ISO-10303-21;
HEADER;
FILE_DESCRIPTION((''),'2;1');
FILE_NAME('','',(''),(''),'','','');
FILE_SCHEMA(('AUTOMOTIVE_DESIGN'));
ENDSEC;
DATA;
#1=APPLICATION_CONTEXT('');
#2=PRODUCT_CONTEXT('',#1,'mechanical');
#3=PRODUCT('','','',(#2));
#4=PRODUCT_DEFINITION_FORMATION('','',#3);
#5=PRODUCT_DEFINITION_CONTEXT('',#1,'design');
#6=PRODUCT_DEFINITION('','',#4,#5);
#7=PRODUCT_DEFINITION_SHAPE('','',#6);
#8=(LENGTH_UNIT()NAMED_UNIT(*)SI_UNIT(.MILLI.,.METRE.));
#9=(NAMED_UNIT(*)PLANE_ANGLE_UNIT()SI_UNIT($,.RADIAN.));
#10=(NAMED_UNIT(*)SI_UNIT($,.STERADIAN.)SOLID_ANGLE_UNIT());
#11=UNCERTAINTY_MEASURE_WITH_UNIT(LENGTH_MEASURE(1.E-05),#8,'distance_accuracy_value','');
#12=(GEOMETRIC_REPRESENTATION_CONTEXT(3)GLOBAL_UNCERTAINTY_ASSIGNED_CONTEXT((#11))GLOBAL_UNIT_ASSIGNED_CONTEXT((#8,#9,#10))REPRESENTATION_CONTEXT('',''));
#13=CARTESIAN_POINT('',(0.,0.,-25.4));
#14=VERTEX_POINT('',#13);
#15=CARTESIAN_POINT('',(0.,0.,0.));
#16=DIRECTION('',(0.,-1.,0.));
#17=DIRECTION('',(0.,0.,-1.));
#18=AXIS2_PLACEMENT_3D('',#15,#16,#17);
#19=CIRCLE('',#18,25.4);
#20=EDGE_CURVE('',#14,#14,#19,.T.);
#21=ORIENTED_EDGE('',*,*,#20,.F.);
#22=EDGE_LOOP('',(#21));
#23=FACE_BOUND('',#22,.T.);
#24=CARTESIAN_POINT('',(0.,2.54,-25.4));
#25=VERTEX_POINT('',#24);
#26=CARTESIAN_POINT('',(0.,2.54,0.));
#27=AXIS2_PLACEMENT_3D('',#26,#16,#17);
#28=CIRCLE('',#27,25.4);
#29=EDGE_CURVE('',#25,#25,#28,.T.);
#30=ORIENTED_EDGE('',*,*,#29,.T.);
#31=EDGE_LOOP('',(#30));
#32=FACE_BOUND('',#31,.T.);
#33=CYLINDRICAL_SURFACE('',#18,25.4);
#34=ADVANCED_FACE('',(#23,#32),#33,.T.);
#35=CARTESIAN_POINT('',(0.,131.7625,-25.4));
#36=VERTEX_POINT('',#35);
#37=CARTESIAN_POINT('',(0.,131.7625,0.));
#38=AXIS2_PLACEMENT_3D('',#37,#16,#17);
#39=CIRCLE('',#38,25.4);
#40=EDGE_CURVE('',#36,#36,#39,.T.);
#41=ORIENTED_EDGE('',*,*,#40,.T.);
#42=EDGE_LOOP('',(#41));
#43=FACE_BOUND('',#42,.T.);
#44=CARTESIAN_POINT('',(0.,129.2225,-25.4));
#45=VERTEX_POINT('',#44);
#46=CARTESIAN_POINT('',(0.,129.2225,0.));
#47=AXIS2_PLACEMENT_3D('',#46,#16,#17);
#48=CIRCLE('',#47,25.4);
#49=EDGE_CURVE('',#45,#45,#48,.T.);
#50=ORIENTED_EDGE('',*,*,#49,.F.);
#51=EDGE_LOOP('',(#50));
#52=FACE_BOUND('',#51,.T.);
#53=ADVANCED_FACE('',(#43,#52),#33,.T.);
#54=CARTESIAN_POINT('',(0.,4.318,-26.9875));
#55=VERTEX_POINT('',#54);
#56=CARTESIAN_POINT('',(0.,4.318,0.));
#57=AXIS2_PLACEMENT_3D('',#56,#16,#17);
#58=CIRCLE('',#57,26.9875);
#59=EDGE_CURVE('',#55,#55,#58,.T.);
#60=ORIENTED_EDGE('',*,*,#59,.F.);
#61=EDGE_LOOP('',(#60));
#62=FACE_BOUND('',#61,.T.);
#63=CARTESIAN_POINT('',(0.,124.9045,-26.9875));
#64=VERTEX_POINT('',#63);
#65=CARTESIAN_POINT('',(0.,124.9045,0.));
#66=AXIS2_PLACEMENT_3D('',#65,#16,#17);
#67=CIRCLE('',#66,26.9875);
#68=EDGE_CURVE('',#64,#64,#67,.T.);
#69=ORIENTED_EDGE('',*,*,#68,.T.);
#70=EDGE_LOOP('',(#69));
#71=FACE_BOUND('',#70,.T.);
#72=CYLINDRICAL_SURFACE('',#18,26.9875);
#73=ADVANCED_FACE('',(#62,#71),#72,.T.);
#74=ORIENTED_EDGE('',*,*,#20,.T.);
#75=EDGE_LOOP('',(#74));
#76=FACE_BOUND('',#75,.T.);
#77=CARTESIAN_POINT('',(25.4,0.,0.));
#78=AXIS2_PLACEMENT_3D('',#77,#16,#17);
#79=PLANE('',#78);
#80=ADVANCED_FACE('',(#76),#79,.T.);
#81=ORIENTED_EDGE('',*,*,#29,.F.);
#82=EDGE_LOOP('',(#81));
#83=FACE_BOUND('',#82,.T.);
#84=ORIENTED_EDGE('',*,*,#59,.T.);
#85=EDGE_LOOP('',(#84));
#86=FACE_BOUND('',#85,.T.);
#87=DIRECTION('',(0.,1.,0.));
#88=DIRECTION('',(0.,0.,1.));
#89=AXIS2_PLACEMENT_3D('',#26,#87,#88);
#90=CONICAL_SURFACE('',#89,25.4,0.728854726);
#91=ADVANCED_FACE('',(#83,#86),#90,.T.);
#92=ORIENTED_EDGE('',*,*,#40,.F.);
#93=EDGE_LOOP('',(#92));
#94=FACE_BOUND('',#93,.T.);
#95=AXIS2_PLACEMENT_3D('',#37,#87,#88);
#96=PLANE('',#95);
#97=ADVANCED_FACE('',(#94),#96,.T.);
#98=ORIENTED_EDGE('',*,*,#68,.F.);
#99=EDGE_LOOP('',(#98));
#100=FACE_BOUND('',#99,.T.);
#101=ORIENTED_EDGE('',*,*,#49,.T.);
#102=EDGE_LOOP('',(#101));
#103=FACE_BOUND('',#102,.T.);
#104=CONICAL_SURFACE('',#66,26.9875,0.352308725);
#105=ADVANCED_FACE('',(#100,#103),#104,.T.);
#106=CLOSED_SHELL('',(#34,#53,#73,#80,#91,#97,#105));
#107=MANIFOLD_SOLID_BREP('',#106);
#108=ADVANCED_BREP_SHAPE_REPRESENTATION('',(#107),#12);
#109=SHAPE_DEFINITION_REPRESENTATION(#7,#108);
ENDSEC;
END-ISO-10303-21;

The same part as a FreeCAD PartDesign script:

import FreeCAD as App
import Part
import Sketcher

V = App.Vector
Q = App.Units.Quantity

doc = App.newDocument("Part")
body = doc.addObject("PartDesign::Body", "Body")

# Sketch on XY plane
sketch1 = doc.addObject("Sketcher::SketchObject", "Sketch")
body.addObject(sketch1)
sketch1.AttachmentSupport = (doc.XY_Plane, [""])
sketch1.MapMode = "FlatFace"
sketch1.addGeometry([
    Part.LineSegment(V(0, 131.8, 0), V(0, 0, 0)),  # 0
    Part.LineSegment(V(0, 0, 0), V(25.4, 0, 0)),  # 1
    Part.LineSegment(V(25.4, 0, 0), V(25.4, 2.5, 0)),  # 2
    Part.LineSegment(V(25.4, 2.5, 0), V(27, 4.3, 0)),  # 3
    Part.LineSegment(V(27, 4.3, 0), V(27, 124.9, 0)),  # 4
    Part.LineSegment(V(27, 124.9, 0), V(25.4, 129.2, 0)),  # 5
    Part.LineSegment(V(25.4, 129.2, 0), V(25.4, 131.8, 0)),  # 6
    Part.LineSegment(V(25.4, 131.8, 0), V(0, 131.8, 0)),  # 7
], False)
sketch1.addConstraint([
    Sketcher.Constraint("Coincident", 0, 2, 1, 1),
    Sketcher.Constraint("Coincident", 1, 2, 2, 1),
    Sketcher.Constraint("Coincident", 2, 2, 3, 1),
    Sketcher.Constraint("Coincident", 3, 2, 4, 1),
    Sketcher.Constraint("Coincident", 4, 2, 5, 1),
    Sketcher.Constraint("Coincident", 5, 2, 6, 1),
    Sketcher.Constraint("Coincident", 6, 2, 7, 1),
    Sketcher.Constraint("Coincident", 7, 2, 0, 1),
    Sketcher.Constraint("Vertical", 0),
    Sketcher.Constraint("Horizontal", 1),
    Sketcher.Constraint("Vertical", 2),
    Sketcher.Constraint("Vertical", 4),
    Sketcher.Constraint("Vertical", 6),
    Sketcher.Constraint("Horizontal", 7),
    Sketcher.Constraint("Coincident", 0, 2, -1, 1),
    Sketcher.Constraint("Vertical", 2, 2, 5, 2),
    Sketcher.Constraint("Equal", 2, 6),
    Sketcher.Constraint("DistanceX", 1, 1, 1, 2, Q("1 in")),
    Sketcher.Constraint("DistanceY", 2, 1, 2, 2, Q("0.1 in")),
    Sketcher.Constraint("DistanceY", 0, 2, 0, 1, Q("5.1875 in")),
    Sketcher.Constraint("DistanceY", -1, 1, 3, 2, Q("0.17 in")),
    Sketcher.Constraint("DistanceY", 4, 2, 5, 2, Q("0.17 in")),
    Sketcher.Constraint("DistanceX", -1, 1, 3, 2, Q("1.0625 in")),
])
revolution = doc.addObject("PartDesign::Revolution", "Revolution")
body.addObject(revolution)
revolution.Profile = sketch1
revolution.ReferenceAxis = (sketch1, ["V_Axis"])
revolution.Angle = 360

doc.recompute()
